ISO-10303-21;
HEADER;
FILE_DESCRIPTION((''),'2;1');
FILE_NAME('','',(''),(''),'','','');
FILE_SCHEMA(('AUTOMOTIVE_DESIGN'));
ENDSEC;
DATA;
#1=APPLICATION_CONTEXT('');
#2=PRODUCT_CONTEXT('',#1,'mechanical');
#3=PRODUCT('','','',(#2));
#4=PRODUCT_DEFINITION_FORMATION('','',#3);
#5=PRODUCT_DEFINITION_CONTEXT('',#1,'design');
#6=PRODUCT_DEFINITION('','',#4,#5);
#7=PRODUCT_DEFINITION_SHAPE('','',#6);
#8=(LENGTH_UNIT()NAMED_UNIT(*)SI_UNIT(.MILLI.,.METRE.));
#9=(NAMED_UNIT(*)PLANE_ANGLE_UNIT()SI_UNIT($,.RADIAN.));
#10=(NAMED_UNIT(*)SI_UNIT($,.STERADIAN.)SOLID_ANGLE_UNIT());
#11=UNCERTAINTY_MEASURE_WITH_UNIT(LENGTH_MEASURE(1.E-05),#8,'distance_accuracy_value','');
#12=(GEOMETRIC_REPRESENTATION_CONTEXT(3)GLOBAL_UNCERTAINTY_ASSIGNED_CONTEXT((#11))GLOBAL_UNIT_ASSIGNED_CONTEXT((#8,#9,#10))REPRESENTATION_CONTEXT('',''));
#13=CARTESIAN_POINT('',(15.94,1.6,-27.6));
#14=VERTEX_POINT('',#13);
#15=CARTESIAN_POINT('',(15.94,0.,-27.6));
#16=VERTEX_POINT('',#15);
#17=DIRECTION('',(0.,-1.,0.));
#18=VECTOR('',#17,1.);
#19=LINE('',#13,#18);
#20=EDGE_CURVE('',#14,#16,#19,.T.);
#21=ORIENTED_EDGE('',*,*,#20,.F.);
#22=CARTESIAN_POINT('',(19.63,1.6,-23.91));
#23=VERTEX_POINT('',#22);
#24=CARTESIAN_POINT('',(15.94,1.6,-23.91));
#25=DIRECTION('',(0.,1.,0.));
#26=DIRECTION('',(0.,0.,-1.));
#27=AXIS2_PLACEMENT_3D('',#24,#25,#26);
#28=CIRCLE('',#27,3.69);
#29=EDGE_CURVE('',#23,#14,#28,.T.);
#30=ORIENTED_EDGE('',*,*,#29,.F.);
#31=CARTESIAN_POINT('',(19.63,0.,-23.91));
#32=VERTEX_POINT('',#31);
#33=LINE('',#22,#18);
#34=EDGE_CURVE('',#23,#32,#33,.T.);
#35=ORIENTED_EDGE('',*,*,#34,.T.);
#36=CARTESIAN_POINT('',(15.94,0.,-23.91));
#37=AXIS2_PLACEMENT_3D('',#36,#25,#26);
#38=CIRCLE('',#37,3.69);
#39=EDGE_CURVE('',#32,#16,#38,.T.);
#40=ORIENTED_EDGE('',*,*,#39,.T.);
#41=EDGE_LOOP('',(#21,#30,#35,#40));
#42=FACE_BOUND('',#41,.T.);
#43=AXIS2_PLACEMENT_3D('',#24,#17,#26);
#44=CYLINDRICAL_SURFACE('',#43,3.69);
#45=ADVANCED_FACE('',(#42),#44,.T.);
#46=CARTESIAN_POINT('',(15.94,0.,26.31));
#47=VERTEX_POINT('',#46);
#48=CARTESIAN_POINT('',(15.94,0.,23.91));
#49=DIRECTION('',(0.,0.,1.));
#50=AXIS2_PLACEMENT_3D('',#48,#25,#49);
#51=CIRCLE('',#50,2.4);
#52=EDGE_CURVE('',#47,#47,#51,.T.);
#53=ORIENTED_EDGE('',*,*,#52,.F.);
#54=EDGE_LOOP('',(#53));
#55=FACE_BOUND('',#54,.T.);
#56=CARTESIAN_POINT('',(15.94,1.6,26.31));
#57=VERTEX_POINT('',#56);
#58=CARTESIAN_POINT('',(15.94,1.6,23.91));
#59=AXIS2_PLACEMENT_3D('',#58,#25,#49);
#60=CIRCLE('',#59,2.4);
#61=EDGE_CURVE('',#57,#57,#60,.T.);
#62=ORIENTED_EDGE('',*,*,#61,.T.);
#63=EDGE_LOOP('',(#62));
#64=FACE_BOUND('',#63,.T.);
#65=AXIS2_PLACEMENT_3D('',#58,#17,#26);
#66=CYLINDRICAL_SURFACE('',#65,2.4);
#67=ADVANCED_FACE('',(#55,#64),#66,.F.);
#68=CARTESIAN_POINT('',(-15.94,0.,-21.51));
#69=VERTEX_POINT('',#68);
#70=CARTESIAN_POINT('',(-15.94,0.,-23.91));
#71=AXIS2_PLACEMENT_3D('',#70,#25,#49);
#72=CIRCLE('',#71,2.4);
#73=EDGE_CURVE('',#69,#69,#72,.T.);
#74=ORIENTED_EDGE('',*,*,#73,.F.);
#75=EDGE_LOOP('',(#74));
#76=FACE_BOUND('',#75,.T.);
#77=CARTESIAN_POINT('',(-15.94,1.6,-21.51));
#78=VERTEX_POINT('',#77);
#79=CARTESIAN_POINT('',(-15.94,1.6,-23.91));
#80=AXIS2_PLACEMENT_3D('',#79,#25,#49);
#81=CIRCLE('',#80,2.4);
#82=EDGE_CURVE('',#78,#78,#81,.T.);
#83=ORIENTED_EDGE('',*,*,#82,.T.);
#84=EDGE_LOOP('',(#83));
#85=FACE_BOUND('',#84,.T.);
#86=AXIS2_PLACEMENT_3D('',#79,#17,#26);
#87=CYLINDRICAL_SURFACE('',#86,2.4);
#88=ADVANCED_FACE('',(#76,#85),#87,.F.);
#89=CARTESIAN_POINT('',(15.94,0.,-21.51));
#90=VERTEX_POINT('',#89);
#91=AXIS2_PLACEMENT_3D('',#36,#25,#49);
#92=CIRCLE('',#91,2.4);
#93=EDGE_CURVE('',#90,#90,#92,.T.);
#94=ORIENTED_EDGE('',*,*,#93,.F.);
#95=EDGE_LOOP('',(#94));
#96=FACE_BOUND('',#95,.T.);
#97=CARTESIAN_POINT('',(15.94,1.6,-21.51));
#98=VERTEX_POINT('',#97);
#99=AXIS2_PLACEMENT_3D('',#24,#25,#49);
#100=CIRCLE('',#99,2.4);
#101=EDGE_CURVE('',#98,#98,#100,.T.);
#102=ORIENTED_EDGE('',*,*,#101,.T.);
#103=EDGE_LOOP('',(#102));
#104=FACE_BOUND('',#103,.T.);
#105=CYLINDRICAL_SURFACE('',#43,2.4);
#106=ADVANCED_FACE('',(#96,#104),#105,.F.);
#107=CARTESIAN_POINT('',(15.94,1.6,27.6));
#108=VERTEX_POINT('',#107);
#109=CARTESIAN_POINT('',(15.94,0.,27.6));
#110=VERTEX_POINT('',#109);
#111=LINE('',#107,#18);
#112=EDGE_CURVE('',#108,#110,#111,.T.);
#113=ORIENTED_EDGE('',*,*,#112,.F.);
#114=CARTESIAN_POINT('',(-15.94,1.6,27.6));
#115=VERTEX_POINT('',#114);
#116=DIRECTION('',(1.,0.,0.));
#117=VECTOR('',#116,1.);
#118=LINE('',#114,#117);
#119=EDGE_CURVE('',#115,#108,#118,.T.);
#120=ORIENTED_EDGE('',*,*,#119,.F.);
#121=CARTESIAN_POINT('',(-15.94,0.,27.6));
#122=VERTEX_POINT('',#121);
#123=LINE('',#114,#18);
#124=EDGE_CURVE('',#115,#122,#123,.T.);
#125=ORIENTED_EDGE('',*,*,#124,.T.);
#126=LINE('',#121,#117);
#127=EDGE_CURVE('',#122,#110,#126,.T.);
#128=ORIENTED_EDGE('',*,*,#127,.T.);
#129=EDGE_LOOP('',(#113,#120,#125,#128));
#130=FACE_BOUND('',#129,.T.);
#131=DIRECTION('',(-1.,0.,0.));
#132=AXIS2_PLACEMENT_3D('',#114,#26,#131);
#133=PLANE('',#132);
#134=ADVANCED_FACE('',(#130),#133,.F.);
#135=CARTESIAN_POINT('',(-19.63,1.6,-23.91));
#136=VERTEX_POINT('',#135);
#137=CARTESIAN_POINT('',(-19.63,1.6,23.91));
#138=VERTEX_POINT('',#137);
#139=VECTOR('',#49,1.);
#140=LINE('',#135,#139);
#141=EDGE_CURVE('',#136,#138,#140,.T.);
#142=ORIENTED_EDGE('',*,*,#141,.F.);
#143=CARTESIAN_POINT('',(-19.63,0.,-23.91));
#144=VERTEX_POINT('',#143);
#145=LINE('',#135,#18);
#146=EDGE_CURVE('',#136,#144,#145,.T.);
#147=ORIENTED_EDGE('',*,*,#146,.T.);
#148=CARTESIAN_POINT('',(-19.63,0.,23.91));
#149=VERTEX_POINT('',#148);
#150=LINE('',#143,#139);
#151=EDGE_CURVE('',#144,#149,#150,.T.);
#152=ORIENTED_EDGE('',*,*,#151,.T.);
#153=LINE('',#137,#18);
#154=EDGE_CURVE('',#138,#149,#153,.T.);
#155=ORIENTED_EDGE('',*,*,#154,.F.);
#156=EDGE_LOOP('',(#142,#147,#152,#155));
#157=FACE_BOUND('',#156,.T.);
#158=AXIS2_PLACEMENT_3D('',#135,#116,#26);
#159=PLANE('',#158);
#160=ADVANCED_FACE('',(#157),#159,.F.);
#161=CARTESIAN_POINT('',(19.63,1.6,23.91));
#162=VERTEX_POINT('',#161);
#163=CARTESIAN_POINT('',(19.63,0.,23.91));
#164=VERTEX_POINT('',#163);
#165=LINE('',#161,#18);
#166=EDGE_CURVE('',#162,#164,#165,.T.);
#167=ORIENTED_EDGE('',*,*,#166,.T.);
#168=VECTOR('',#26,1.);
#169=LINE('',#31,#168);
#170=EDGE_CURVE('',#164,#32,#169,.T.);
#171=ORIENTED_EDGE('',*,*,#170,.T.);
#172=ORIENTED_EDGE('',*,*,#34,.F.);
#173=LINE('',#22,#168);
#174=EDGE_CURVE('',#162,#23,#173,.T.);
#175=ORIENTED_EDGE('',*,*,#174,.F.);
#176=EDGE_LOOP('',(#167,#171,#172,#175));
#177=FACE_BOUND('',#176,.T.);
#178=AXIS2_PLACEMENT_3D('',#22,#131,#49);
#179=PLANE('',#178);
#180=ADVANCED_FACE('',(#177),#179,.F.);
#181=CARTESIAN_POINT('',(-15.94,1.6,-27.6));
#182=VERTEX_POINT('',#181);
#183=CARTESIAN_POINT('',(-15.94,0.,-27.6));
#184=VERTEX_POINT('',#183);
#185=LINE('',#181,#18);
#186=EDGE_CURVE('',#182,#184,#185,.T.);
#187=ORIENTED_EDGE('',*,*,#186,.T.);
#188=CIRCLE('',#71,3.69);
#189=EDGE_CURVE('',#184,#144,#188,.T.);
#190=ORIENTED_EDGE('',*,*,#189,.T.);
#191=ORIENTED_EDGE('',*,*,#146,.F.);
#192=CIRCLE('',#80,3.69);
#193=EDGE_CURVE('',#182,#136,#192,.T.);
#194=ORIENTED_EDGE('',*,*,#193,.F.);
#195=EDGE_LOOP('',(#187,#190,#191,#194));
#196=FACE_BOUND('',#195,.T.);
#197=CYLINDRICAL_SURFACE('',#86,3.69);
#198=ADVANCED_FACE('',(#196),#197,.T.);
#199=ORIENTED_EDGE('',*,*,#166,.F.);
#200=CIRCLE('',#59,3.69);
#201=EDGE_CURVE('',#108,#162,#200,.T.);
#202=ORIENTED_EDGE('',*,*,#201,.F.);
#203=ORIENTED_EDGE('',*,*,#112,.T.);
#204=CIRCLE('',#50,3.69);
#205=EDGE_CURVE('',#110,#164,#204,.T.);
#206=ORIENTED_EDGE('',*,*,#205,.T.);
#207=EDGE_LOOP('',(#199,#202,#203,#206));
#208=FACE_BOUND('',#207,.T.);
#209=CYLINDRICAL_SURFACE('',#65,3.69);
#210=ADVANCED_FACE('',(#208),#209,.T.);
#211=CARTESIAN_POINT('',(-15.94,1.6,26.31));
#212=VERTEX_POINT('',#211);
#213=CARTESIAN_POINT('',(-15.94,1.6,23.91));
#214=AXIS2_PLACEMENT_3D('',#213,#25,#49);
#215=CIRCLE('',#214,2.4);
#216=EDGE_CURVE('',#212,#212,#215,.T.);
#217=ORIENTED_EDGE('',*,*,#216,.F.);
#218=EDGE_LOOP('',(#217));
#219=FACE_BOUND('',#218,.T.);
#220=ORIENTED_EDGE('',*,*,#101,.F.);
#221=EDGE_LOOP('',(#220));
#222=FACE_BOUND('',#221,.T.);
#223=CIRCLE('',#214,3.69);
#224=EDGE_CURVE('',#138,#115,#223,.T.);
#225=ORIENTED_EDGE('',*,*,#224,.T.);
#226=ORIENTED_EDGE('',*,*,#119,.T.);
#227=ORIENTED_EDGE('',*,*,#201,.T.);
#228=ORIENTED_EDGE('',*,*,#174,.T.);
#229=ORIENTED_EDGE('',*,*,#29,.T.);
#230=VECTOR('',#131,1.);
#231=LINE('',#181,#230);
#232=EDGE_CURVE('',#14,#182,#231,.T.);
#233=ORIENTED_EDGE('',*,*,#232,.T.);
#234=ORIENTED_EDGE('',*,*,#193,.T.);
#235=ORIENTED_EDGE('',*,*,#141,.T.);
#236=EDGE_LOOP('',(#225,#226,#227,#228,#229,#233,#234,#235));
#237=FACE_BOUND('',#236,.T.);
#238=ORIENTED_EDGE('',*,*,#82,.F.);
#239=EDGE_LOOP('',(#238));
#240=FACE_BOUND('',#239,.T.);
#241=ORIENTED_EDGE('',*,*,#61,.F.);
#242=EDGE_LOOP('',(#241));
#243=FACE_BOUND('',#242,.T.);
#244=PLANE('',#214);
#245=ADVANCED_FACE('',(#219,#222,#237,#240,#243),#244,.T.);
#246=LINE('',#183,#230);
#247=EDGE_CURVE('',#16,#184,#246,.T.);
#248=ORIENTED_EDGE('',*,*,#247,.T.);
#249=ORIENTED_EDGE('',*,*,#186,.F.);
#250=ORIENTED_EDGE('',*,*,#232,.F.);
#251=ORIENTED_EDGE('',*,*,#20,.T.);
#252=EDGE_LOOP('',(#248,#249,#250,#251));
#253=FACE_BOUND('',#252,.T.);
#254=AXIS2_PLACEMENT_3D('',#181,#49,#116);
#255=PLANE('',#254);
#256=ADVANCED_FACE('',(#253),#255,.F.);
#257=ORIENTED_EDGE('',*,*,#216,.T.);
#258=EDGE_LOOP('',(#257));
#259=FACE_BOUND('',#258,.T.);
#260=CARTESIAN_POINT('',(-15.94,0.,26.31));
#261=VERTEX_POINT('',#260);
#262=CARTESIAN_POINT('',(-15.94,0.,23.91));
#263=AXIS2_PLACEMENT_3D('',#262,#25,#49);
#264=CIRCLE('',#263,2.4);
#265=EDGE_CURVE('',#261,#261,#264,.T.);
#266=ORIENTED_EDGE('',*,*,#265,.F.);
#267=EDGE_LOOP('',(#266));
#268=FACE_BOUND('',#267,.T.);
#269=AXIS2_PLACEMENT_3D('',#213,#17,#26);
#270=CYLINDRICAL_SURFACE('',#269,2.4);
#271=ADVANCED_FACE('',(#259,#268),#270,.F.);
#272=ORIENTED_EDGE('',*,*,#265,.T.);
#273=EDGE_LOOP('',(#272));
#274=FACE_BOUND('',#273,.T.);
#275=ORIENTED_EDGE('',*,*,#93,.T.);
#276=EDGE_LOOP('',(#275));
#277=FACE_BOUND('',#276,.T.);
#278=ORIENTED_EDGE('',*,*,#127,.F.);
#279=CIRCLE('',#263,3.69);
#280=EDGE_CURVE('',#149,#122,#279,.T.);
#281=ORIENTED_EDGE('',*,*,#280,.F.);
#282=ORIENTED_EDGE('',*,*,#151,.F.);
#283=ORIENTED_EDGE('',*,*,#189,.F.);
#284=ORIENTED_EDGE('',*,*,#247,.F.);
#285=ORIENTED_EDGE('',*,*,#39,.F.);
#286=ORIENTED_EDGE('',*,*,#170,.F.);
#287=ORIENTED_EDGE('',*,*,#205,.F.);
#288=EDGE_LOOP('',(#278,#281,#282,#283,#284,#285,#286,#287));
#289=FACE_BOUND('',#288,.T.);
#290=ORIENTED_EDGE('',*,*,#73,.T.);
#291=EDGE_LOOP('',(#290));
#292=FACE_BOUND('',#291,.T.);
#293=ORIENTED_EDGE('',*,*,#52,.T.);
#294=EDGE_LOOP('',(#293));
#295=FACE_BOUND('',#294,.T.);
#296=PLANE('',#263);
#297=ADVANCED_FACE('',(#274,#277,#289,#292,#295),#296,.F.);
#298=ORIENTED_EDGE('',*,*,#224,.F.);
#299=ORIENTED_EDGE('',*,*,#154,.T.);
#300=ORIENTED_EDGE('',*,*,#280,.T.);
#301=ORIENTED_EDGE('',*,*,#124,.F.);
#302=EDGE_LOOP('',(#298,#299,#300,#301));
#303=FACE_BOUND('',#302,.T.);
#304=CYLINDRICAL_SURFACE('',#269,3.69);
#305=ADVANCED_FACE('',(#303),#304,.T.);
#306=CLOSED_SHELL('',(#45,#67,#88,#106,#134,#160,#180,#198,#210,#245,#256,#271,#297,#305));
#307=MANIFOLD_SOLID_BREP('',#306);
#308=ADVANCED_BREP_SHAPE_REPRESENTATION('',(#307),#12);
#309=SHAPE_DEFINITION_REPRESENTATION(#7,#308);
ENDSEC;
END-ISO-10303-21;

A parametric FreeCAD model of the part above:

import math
import FreeCAD as App
import Part
import Sketcher
Q = App.Units.Quantity

doc = App.newDocument("Part")
body = doc.addObject("PartDesign::Body", "Body")

# Sketch on XZ plane
sketch1 = body.newObject("Sketcher::SketchObject", "Sketch")
sketch1.AttachmentSupport = (doc.getObject("XZ_Plane"), [""])
sketch1.MapMode = "FlatFace"
sketch1.addGeometry([
    Part.LineSegment(App.Vector(15.9, -27.6, 0), App.Vector(-15.9, -27.6, 0)),  # 0
    Part.ArcOfCircle(Part.Circle(App.Vector(-15.9, -23.9, 0), App.Vector(0, 0, 1), 3.7), math.radians(180), math.radians(270)),  # 1
    Part.LineSegment(App.Vector(-19.6, -23.9, 0), App.Vector(-19.6, 23.9, 0)),  # 2
    Part.ArcOfCircle(Part.Circle(App.Vector(-15.9, 23.9, 0), App.Vector(0, 0, 1), 3.7), math.radians(90), math.radians(180)),  # 3
    Part.LineSegment(App.Vector(-15.9, 27.6, 0), App.Vector(15.9, 27.6, 0)),  # 4
    Part.ArcOfCircle(Part.Circle(App.Vector(15.9, 23.9, 0), App.Vector(0, 0, 1), 3.7), math.radians(0), math.radians(90)),  # 5
    Part.LineSegment(App.Vector(19.6, 23.9, 0), App.Vector(19.6, -23.9, 0)),  # 6
    Part.ArcOfCircle(Part.Circle(App.Vector(15.9, -23.9, 0), App.Vector(0, 0, 1), 3.7), math.radians(-90), math.radians(0)),  # 7
    Part.Circle(App.Vector(15.9, 23.9, 0), App.Vector(0, 0, 1), 2.4),  # 8
    Part.Circle(App.Vector(-15.9, 23.9, 0), App.Vector(0, 0, 1), 2.4),  # 9
    Part.Circle(App.Vector(15.9, -23.9, 0), App.Vector(0, 0, 1), 2.4),  # 10
    Part.Circle(App.Vector(-15.9, -23.9, 0), App.Vector(0, 0, 1), 2.4),  # 11
], False)
sketch1.addConstraint([
    Sketcher.Constraint("Tangent", 0, 2, 1, 2),
    Sketcher.Constraint("Tangent", 1, 1, 2, 1),
    Sketcher.Constraint("Tangent", 2, 2, 3, 2),
    Sketcher.Constraint("Tangent", 3, 1, 4, 1),
    Sketcher.Constraint("Tangent", 4, 2, 5, 2),
    Sketcher.Constraint("Tangent", 5, 1, 6, 1),
    Sketcher.Constraint("Tangent", 6, 2, 7, 2),
    Sketcher.Constraint("Tangent", 7, 1, 0, 1),
    Sketcher.Constraint("Horizontal", 0),
    Sketcher.Constraint("Vertical", 2),
    Sketcher.Constraint("Horizontal", 4),
    Sketcher.Constraint("Vertical", 6),
    Sketcher.Constraint("Coincident", 8, 3, 5, 3),
    Sketcher.Constraint("Coincident", 9, 3, 3, 3),
    Sketcher.Constraint("Coincident", 10, 3, 7, 3),
    Sketcher.Constraint("Coincident", 11, 3, 1, 3),
    Sketcher.Constraint("Equal", 1, 3),
    Sketcher.Constraint("Equal", 3, 5),
    Sketcher.Constraint("Equal", 5, 7),
    Sketcher.Constraint("Equal", 8, 9),
    Sketcher.Constraint("Equal", 9, 10),
    Sketcher.Constraint("Equal", 10, 11),
    Sketcher.Constraint("Symmetric", 1, 3, 5, 3, -1, 1),
    Sketcher.Constraint("Diameter", 8, Q("4.8 mm")),
    Sketcher.Constraint("Radius", 1, Q("3.69 mm")),
    Sketcher.Constraint("DistanceX", 0, 2, 0, 1, Q("31.88 mm")),
    Sketcher.Constraint("DistanceY", 2, 1, 2, 2, Q("47.82 mm")),
])
pad1 = body.newObject("PartDesign::Pad", "Pad")
pad1.Profile = sketch1
pad1.Length = 1.6
pad1.Reversed = True

doc.recompute()
